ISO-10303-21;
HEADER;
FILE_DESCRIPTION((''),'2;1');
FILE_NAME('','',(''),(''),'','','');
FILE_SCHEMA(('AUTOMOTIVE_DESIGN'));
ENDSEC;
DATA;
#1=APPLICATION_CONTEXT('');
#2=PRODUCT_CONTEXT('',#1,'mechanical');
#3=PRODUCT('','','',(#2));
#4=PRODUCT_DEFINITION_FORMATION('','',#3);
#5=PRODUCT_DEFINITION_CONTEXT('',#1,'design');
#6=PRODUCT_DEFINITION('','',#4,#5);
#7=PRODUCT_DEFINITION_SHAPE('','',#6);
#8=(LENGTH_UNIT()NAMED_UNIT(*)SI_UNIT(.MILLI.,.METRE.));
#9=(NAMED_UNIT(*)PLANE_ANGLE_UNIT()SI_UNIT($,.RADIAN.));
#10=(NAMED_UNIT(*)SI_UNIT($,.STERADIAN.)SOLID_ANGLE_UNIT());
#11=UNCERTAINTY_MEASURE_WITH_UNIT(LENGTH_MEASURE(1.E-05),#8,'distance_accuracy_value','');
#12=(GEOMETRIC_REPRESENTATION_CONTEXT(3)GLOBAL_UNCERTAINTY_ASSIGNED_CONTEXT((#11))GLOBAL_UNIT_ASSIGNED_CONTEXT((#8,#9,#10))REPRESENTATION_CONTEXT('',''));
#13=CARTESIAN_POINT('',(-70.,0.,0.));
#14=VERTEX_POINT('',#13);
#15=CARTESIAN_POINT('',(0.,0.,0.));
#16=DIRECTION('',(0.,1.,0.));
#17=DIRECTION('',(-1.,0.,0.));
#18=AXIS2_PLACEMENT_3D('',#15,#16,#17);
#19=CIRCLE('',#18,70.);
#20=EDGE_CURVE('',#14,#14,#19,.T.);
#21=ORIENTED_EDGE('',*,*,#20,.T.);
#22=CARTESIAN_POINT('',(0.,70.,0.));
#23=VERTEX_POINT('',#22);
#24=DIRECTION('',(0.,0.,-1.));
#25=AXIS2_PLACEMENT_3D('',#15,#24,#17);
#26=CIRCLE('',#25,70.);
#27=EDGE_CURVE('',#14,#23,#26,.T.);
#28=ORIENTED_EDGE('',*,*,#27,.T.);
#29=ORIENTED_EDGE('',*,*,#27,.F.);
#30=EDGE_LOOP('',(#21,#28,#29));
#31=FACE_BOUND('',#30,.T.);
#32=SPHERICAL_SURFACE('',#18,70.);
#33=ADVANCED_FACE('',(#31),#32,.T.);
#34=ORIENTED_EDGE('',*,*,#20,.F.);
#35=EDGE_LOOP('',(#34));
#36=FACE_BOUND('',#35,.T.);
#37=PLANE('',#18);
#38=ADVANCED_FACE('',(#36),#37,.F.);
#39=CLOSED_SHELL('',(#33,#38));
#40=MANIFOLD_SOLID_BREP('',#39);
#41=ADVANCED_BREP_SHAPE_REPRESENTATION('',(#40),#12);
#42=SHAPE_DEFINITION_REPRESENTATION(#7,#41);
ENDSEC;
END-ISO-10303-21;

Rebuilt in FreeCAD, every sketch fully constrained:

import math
import FreeCAD as App
import Part
import Sketcher

V = App.Vector
Q = App.Units.Quantity

doc = App.newDocument("Part")
params = doc.addObject("Spreadsheet::Sheet", "Params")
for row, (alias, value) in enumerate([
    ("sketch1_radius", "70 mm"),
    ("revolution_angle", "360 deg"),
], start=1):
    params.set(f"A{row}", alias)
    params.set(f"B{row}", "=" + value)
    params.setAlias(f"B{row}", alias)

body = doc.addObject("PartDesign::Body", "Body")

# Sketch on XY plane
sketch1 = doc.addObject("Sketcher::SketchObject", "Sketch")
body.addObject(sketch1)
sketch1.AttachmentSupport = (doc.XY_Plane, [""])
sketch1.MapMode = "FlatFace"
sketch1.addGeometry([
    Part.LineSegment(V(-70, 0, 0), V(0, 0, 0)),
    Part.LineSegment(V(0, 0, 0), V(0, 70, 0)),
    Part.ArcOfCircle(Part.Circle(V(0, 0, 0), V(0, 0, 1), 70), math.radians(90), math.radians(180)),
], False)
sketch1.addConstraint([
    Sketcher.Constraint("Coincident", 0, 2, 1, 1),
    Sketcher.Constraint("Coincident", 1, 2, 2, 1),
    Sketcher.Constraint("Coincident", 2, 2, 0, 1),
    Sketcher.Constraint("Horizontal", 0),
    Sketcher.Constraint("Vertical", 1),
    Sketcher.Constraint("Coincident", 2, 3, -1, 1),
    Sketcher.Constraint("Coincident", 0, 2, -1, 1),
    Sketcher.Constraint("Radius", 2, Q("70 mm")),
])
sketch1.setExpression("Constraints[7]", "Params.sketch1_radius")
revolution = doc.addObject("PartDesign::Revolution", "Revolution")
body.addObject(revolution)
revolution.Profile = sketch1
revolution.ReferenceAxis = (sketch1, ["V_Axis"])
revolution.setExpression("Angle", "Params.revolution_angle")

doc.recompute()
